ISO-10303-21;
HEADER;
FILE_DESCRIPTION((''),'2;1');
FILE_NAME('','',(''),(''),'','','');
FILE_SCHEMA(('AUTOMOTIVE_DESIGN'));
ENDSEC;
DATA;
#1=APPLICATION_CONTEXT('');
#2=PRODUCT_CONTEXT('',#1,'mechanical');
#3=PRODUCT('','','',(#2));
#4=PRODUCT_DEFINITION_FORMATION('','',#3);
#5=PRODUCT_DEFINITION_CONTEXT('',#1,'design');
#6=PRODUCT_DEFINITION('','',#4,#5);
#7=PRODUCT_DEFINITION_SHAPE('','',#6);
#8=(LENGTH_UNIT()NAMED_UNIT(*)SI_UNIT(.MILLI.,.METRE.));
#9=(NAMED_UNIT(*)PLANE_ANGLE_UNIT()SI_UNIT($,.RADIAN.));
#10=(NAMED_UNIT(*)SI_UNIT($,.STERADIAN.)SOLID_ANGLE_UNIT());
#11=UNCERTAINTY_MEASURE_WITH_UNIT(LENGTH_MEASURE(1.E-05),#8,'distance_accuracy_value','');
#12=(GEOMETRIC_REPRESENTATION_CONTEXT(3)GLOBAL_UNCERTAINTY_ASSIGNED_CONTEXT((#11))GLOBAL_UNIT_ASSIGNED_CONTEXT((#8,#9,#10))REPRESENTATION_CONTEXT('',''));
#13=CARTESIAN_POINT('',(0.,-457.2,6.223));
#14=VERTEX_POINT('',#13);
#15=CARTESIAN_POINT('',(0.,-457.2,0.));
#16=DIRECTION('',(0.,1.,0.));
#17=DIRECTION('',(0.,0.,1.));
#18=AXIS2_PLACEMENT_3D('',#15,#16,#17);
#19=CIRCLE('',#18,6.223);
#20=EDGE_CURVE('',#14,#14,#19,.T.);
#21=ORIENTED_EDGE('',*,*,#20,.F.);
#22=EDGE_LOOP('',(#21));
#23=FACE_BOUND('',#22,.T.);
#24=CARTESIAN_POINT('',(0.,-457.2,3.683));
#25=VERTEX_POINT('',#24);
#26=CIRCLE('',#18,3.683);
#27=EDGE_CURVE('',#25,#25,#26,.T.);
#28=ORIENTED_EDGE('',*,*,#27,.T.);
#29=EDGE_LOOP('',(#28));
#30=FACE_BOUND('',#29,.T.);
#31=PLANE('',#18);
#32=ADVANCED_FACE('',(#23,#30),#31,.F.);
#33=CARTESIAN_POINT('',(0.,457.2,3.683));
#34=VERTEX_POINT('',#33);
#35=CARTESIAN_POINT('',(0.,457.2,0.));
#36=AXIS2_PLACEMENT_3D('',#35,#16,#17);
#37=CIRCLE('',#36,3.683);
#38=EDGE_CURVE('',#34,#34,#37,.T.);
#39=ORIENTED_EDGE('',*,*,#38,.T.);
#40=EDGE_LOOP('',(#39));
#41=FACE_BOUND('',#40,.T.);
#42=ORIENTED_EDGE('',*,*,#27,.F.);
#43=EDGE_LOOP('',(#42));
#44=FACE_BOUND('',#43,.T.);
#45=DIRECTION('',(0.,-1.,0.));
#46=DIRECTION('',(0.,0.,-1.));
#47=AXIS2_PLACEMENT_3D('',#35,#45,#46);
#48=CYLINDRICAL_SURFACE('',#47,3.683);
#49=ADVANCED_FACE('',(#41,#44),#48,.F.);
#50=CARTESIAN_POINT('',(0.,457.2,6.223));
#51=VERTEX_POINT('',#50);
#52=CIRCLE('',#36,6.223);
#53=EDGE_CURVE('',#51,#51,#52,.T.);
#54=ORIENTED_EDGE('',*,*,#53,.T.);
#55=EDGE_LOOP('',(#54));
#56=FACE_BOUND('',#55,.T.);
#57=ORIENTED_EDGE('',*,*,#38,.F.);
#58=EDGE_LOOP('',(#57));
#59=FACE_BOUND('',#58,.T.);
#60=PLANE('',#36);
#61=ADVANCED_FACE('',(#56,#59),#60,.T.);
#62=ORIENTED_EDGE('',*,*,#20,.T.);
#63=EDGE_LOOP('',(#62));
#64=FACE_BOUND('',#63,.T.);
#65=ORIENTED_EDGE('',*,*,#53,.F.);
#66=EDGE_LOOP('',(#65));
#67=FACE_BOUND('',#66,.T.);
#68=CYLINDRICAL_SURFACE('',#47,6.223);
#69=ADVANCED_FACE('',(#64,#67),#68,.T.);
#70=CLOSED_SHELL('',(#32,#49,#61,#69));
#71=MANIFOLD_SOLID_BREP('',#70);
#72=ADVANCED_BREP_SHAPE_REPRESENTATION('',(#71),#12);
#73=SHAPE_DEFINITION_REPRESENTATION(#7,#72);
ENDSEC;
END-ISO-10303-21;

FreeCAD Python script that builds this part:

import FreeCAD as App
import Part
import Sketcher
Q = App.Units.Quantity

doc = App.newDocument("Part")
body = doc.addObject("PartDesign::Body", "Body")

# Sketch on XZ plane
sketch1 = body.newObject("Sketcher::SketchObject", "Sketch")
sketch1.AttachmentSupport = (doc.getObject("XZ_Plane"), [""])
sketch1.MapMode = "FlatFace"
sketch1.addGeometry([
    Part.Circle(App.Vector(0, 0, 0), App.Vector(0, 0, 1), 6.2),
    Part.Circle(App.Vector(0, 0, 0), App.Vector(0, 0, 1), 3.7),
], False)
sketch1.addConstraint([
    Sketcher.Constraint("Coincident", 0, 3, -1, 1),
    Sketcher.Constraint("Coincident", 1, 3, -1, 1),
    Sketcher.Constraint("Diameter", 0, Q("0.49 in")),
    Sketcher.Constraint("Diameter", 1, Q("0.29 in")),
])
pad1 = body.newObject("PartDesign::Pad", "Pad")
pad1.Profile = sketch1
pad1.Length = Q("36 in")
pad1.Midplane = True

doc.recompute()
